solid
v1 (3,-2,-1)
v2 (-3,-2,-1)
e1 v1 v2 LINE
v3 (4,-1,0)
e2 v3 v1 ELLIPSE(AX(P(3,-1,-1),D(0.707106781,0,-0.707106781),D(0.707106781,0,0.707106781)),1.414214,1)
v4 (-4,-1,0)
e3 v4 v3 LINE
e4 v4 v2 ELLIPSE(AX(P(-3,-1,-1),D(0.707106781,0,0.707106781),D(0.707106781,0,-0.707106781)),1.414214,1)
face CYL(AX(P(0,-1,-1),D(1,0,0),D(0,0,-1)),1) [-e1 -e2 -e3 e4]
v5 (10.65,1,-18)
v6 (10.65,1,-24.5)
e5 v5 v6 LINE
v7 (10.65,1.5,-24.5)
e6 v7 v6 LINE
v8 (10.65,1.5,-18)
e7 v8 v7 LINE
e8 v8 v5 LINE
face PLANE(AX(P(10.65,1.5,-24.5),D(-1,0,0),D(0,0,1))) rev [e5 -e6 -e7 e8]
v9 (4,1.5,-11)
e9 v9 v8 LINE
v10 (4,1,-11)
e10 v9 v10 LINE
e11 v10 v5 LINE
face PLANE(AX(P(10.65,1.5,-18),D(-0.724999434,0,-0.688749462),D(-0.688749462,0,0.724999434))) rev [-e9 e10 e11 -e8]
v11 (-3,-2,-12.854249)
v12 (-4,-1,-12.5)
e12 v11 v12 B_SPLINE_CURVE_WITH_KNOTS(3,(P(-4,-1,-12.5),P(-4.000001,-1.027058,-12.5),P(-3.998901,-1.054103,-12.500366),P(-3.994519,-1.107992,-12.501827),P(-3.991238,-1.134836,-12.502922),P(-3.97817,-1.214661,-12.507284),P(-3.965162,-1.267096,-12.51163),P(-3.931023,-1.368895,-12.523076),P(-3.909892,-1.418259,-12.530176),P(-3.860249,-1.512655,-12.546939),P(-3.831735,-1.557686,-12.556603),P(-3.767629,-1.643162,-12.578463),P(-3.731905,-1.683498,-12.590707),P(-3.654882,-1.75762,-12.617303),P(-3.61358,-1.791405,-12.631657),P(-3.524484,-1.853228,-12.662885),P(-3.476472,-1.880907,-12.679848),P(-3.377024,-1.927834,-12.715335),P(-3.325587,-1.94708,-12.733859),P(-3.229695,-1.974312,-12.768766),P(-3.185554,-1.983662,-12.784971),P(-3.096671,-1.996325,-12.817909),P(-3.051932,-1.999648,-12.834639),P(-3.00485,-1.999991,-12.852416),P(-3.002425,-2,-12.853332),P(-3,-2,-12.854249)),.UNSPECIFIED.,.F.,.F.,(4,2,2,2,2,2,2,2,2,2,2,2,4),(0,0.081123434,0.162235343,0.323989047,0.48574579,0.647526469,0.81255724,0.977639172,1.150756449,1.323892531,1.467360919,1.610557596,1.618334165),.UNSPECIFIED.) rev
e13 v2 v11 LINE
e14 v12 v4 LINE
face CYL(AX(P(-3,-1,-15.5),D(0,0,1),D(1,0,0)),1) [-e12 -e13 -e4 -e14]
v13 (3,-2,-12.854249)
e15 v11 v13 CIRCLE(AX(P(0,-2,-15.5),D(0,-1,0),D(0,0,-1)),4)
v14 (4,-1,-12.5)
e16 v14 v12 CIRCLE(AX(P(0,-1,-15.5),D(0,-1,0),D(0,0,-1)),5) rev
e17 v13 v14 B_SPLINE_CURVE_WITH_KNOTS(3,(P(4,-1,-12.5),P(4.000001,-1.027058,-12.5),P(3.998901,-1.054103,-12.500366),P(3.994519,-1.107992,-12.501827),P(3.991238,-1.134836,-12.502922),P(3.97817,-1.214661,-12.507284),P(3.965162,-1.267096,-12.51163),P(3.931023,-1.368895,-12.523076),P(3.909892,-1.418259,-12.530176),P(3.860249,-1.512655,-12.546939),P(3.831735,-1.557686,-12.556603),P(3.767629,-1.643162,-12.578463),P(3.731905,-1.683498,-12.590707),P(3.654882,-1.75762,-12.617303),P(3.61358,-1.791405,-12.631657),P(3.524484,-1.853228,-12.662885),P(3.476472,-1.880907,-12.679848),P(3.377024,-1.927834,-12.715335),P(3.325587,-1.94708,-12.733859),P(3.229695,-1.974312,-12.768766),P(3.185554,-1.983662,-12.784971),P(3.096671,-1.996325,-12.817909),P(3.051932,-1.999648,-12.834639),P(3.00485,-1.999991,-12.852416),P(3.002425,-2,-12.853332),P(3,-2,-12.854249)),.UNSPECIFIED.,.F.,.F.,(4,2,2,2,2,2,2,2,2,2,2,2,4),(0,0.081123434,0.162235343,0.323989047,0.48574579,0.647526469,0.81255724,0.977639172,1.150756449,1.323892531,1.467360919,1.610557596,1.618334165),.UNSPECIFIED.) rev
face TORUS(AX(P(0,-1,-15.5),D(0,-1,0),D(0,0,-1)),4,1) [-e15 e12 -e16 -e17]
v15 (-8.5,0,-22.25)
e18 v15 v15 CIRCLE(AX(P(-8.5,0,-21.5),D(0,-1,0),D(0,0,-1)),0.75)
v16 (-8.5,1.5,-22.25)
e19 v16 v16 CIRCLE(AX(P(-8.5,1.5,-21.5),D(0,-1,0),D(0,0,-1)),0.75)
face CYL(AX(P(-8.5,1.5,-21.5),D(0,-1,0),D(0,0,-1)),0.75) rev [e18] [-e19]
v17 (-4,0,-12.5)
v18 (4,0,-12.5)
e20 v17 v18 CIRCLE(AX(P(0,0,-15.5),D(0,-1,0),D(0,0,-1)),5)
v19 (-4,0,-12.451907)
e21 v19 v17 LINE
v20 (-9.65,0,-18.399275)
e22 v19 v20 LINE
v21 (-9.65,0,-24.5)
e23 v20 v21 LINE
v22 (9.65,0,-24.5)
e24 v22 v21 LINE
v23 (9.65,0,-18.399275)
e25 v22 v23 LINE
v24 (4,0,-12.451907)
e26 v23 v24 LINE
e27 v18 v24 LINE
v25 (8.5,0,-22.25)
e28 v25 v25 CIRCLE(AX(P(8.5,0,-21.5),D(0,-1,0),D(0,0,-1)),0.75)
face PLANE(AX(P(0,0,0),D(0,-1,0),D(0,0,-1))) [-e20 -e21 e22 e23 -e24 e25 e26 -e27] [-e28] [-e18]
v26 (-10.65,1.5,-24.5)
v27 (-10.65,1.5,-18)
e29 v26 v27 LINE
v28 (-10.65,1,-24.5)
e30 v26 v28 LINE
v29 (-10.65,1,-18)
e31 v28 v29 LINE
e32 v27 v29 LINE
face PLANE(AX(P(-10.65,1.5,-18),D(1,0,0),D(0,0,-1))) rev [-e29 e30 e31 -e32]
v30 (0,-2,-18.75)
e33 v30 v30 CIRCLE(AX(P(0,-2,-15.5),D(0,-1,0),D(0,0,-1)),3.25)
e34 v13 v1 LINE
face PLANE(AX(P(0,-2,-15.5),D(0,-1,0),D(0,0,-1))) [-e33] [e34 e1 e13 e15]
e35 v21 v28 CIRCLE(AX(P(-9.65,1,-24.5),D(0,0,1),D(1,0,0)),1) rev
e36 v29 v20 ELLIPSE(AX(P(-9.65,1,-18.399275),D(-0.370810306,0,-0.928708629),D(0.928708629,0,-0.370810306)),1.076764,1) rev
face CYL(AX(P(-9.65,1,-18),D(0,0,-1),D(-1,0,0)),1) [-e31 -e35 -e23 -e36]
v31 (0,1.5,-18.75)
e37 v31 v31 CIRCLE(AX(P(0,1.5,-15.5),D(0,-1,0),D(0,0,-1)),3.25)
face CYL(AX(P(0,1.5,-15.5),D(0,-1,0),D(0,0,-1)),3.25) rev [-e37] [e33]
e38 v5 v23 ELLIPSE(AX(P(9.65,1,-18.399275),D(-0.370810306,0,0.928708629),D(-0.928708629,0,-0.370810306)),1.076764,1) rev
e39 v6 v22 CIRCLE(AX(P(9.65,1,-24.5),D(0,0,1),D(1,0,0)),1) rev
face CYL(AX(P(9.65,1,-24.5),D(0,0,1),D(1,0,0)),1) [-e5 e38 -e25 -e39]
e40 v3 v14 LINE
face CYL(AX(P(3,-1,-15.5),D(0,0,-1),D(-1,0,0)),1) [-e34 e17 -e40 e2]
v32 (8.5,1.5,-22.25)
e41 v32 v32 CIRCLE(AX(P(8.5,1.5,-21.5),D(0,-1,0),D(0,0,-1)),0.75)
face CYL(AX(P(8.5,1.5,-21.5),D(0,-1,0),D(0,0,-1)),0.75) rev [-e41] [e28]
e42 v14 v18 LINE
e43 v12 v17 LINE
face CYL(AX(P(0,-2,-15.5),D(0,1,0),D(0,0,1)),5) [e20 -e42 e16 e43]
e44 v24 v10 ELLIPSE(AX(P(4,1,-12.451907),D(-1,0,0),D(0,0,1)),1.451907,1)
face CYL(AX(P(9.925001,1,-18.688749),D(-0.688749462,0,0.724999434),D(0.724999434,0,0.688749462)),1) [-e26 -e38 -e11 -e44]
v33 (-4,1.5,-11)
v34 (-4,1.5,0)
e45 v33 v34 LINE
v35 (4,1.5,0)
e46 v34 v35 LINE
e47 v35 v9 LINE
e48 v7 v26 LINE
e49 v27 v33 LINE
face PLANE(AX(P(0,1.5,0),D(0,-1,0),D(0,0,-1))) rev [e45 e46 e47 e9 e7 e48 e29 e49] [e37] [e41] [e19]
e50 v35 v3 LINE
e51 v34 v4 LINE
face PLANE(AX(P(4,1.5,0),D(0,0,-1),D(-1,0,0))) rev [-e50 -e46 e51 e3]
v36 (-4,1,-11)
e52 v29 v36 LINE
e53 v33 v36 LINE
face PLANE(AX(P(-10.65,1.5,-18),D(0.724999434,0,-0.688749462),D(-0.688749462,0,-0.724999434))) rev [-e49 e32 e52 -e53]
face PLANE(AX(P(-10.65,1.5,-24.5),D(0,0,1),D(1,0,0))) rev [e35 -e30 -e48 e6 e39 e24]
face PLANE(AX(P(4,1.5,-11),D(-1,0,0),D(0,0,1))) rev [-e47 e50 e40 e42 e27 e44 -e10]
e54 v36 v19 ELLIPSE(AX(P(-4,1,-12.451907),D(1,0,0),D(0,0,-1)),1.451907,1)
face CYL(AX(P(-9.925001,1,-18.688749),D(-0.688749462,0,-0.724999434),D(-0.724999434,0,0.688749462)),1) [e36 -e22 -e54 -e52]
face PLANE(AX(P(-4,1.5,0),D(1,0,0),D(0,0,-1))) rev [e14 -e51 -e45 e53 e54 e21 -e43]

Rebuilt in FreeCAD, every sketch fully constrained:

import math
import FreeCAD as App
import Part
import Sketcher

V = App.Vector


def edges_at(feature, points):
    """Names of the edges that pass closest to the given points."""
    edges = feature.Shape.Edges
    near = lambda p: min(range(len(edges)), key=lambda i: edges[i].distToShape(Part.Vertex(*p))[0])
    return sorted({f"Edge{near(p) + 1}" for p in points})

doc = App.newDocument("Part")
body = doc.addObject("PartDesign::Body", "Body")

# Sketch on XZ plane
sketch1 = doc.addObject("Sketcher::SketchObject", "Sketch")
body.addObject(sketch1)
sketch1.AttachmentSupport = (doc.XZ_Plane, [""])
sketch1.MapMode = "FlatFace"
sketch1.addGeometry(Part.LineSegment(V(-10.65, -18, 0), V(-4, -11, 0)), False)
sketch1.addGeometry(Part.LineSegment(V(-4, -11, 0), V(-4, 0, 0)), False)
sketch1.addGeometry(Part.LineSegment(V(-4, 0, 0), V(4, 0, 0)), False)
sketch1.addGeometry(Part.LineSegment(V(4, 0, 0), V(4, -11, 0)), False)
sketch1.addGeometry(Part.LineSegment(V(4, -11, 0), V(10.65, -18, 0)), False)
sketch1.addGeometry(Part.LineSegment(V(10.65, -18, 0), V(10.65, -24.5, 0)), False)
sketch1.addGeometry(Part.LineSegment(V(10.65, -24.5, 0), V(-10.65, -24.5, 0)), False)
sketch1.addGeometry(Part.LineSegment(V(-10.65, -24.5, 0), V(-10.65, -18, 0)), False)
sketch1.addConstraint(Sketcher.Constraint("Coincident", 0, 2, 1, 1))
sketch1.addConstraint(Sketcher.Constraint("Coincident", 1, 2, 2, 1))
sketch1.addConstraint(Sketcher.Constraint("Coincident", 2, 2, 3, 1))
sketch1.addConstraint(Sketcher.Constraint("Coincident", 3, 2, 4, 1))
sketch1.addConstraint(Sketcher.Constraint("Coincident", 4, 2, 5, 1))
sketch1.addConstraint(Sketcher.Constraint("Coincident", 5, 2, 6, 1))
sketch1.addConstraint(Sketcher.Constraint("Coincident", 6, 2, 7, 1))
sketch1.addConstraint(Sketcher.Constraint("Coincident", 7, 2, 0, 1))
sketch1.addConstraint(Sketcher.Constraint("Vertical", 1))
sketch1.addConstraint(Sketcher.Constraint("Horizontal", 2))
sketch1.addConstraint(Sketcher.Constraint("Vertical", 3))
sketch1.addConstraint(Sketcher.Constraint("Vertical", 5))
sketch1.addConstraint(Sketcher.Constraint("Horizontal", 6))
sketch1.addConstraint(Sketcher.Constraint("Vertical", 7))
sketch1.addConstraint(Sketcher.Constraint("Symmetric", 1, 2, 2, 2, -1, 1))
sketch1.addConstraint(Sketcher.Constraint("Symmetric", 4, 2, 7, 2, -2))
sketch1.addConstraint(Sketcher.Constraint("Horizontal", 0, 2, 3, 2))
sketch1.addConstraint(Sketcher.Constraint("DistanceX", 2, 1, 2, 2, 8.0))
sketch1.addConstraint(Sketcher.Constraint("DistanceY", 1, 1, 1, 2, 11.0))
sketch1.addConstraint(Sketcher.Constraint("DistanceX", 6, 2, 6, 1, 21.3))
sketch1.addConstraint(Sketcher.Constraint("DistanceY", 5, 2, 5, 1, 6.5))
sketch1.addConstraint(Sketcher.Constraint("DistanceY", 4, 2, -1, 1, 18.0))
pad1 = doc.addObject("PartDesign::Pad", "Pad")
body.addObject(pad1)
pad1.Profile = sketch1
pad1.Length = 1.5
pad1.Reversed = True

# Sketch on XZ plane
sketch2 = doc.addObject("Sketcher::SketchObject", "Sketch001")
body.addObject(sketch2)
sketch2.AttachmentSupport = (doc.XZ_Plane, [""])
sketch2.MapMode = "FlatFace"
sketch2.addGeometry(Part.LineSegment(V(4, -12, 0), V(4, 0, 0)), False)
sketch2.addGeometry(Part.LineSegment(V(4, 0, 0), V(-4, 0, 0)), False)
sketch2.addGeometry(Part.LineSegment(V(-4, 0, 0), V(-4, -12, 0)), False)
sketch2.addGeometry(Part.ArcOfCircle(Part.Circle(V(0, -16, 0), V(0, 0, 1), 5), math.radians(143), math.radians(397)), False)
sketch2.addConstraint(Sketcher.Constraint("Coincident", 0, 2, 1, 1))
sketch2.addConstraint(Sketcher.Constraint("Coincident", 1, 2, 2, 1))
sketch2.addConstraint(Sketcher.Constraint("Coincident", 2, 2, 3, 1))
sketch2.addConstraint(Sketcher.Constraint("Coincident", 3, 2, 0, 1))
sketch2.addConstraint(Sketcher.Constraint("Vertical", 0))
sketch2.addConstraint(Sketcher.Constraint("Horizontal", 1))
sketch2.addConstraint(Sketcher.Constraint("Vertical", 2))
sketch2.addConstraint(Sketcher.Constraint("Symmetric", 0, 2, 1, 2, -1, 1))
sketch2.addConstraint(Sketcher.Constraint("PointOnObject", 3, 3, -2))
sketch2.addConstraint(Sketcher.Constraint("Radius", 3, 5.0))
sketch2.addConstraint(Sketcher.Constraint("DistanceX", 1, 2, 1, 1, 8.0))
sketch2.addConstraint(Sketcher.Constraint("DistanceY", 0, 1, 0, 2, 12.5))
pad2 = doc.addObject("PartDesign::Pad", "Pad001")
body.addObject(pad2)
pad2.Profile = sketch2
pad2.Length = 2
doc.recompute()

fillet = doc.addObject("PartDesign::Fillet", "Fillet")
body.addObject(fillet)
fillet.Base = (pad2, edges_at(pad2, [
    (0, -2, 0),
    (-4, -2, -6.25),
    (0, -2, -20.5),
    (4, -2, -6.25),
]))
fillet.Radius = 1
doc.recompute()

fillet2 = doc.addObject("PartDesign::Fillet", "Fillet001")
body.addObject(fillet2)
fillet2.Base = (fillet, edges_at(fillet, [
    (-7.325, 0, -14.5),
    (-10.65, 0, -21.25),
    (10.65, 0, -21.25),
    (7.325, 0, -14.5),
]))
fillet2.Radius = 1

# Sketch on XZ plane
sketch3 = doc.addObject("Sketcher::SketchObject", "Sketch002")
body.addObject(sketch3)
sketch3.AttachmentSupport = (doc.XZ_Plane, [""])
sketch3.MapMode = "FlatFace"
sketch3.AttachmentOffset = App.Placement(V(0, 0, 2), App.Rotation())
sketch3.addGeometry(Part.Circle(V(0, -15.5, 0), V(0, 0, 1), 3.2), False)
sketch3.addConstraint(Sketcher.Constraint("PointOnObject", 0, 3, -2))
sketch3.addConstraint(Sketcher.Constraint("Diameter", 0, 6.5))
sketch3.addConstraint(Sketcher.Constraint("DistanceY", 0, 3, -1, 1, 15.5))
pocket1 = doc.addObject("PartDesign::Pocket", "Pocket")
body.addObject(pocket1)
pocket1.Profile = sketch3
pocket1.Type = "ThroughAll"

# Sketch on XZ plane
sketch4 = doc.addObject("Sketcher::SketchObject", "Sketch003")
body.addObject(sketch4)
sketch4.AttachmentSupport = (doc.XZ_Plane, [""])
sketch4.MapMode = "FlatFace"
sketch4.addGeometry(Part.Circle(V(-8.5, -21.5, 0), V(0, 0, 1), 0.8), False)
sketch4.addGeometry(Part.Circle(V(8.5, -21.5, 0), V(0, 0, 1), 0.8), False)
sketch4.addConstraint(Sketcher.Constraint("Equal", 0, 1))
sketch4.addConstraint(Sketcher.Constraint("Symmetric", 0, 3, 1, 3, -2))
sketch4.addConstraint(Sketcher.Constraint("Diameter", 0, 1.5))
sketch4.addConstraint(Sketcher.Constraint("DistanceX", 0, 3, 1, 3, 17.0))
sketch4.addConstraint(Sketcher.Constraint("DistanceY", 0, 3, -1, 1, 21.5))
pocket2 = doc.addObject("PartDesign::Pocket", "Pocket001")
body.addObject(pocket2)
pocket2.Profile = sketch4
pocket2.Type = "ThroughAll"

doc.recompute()
